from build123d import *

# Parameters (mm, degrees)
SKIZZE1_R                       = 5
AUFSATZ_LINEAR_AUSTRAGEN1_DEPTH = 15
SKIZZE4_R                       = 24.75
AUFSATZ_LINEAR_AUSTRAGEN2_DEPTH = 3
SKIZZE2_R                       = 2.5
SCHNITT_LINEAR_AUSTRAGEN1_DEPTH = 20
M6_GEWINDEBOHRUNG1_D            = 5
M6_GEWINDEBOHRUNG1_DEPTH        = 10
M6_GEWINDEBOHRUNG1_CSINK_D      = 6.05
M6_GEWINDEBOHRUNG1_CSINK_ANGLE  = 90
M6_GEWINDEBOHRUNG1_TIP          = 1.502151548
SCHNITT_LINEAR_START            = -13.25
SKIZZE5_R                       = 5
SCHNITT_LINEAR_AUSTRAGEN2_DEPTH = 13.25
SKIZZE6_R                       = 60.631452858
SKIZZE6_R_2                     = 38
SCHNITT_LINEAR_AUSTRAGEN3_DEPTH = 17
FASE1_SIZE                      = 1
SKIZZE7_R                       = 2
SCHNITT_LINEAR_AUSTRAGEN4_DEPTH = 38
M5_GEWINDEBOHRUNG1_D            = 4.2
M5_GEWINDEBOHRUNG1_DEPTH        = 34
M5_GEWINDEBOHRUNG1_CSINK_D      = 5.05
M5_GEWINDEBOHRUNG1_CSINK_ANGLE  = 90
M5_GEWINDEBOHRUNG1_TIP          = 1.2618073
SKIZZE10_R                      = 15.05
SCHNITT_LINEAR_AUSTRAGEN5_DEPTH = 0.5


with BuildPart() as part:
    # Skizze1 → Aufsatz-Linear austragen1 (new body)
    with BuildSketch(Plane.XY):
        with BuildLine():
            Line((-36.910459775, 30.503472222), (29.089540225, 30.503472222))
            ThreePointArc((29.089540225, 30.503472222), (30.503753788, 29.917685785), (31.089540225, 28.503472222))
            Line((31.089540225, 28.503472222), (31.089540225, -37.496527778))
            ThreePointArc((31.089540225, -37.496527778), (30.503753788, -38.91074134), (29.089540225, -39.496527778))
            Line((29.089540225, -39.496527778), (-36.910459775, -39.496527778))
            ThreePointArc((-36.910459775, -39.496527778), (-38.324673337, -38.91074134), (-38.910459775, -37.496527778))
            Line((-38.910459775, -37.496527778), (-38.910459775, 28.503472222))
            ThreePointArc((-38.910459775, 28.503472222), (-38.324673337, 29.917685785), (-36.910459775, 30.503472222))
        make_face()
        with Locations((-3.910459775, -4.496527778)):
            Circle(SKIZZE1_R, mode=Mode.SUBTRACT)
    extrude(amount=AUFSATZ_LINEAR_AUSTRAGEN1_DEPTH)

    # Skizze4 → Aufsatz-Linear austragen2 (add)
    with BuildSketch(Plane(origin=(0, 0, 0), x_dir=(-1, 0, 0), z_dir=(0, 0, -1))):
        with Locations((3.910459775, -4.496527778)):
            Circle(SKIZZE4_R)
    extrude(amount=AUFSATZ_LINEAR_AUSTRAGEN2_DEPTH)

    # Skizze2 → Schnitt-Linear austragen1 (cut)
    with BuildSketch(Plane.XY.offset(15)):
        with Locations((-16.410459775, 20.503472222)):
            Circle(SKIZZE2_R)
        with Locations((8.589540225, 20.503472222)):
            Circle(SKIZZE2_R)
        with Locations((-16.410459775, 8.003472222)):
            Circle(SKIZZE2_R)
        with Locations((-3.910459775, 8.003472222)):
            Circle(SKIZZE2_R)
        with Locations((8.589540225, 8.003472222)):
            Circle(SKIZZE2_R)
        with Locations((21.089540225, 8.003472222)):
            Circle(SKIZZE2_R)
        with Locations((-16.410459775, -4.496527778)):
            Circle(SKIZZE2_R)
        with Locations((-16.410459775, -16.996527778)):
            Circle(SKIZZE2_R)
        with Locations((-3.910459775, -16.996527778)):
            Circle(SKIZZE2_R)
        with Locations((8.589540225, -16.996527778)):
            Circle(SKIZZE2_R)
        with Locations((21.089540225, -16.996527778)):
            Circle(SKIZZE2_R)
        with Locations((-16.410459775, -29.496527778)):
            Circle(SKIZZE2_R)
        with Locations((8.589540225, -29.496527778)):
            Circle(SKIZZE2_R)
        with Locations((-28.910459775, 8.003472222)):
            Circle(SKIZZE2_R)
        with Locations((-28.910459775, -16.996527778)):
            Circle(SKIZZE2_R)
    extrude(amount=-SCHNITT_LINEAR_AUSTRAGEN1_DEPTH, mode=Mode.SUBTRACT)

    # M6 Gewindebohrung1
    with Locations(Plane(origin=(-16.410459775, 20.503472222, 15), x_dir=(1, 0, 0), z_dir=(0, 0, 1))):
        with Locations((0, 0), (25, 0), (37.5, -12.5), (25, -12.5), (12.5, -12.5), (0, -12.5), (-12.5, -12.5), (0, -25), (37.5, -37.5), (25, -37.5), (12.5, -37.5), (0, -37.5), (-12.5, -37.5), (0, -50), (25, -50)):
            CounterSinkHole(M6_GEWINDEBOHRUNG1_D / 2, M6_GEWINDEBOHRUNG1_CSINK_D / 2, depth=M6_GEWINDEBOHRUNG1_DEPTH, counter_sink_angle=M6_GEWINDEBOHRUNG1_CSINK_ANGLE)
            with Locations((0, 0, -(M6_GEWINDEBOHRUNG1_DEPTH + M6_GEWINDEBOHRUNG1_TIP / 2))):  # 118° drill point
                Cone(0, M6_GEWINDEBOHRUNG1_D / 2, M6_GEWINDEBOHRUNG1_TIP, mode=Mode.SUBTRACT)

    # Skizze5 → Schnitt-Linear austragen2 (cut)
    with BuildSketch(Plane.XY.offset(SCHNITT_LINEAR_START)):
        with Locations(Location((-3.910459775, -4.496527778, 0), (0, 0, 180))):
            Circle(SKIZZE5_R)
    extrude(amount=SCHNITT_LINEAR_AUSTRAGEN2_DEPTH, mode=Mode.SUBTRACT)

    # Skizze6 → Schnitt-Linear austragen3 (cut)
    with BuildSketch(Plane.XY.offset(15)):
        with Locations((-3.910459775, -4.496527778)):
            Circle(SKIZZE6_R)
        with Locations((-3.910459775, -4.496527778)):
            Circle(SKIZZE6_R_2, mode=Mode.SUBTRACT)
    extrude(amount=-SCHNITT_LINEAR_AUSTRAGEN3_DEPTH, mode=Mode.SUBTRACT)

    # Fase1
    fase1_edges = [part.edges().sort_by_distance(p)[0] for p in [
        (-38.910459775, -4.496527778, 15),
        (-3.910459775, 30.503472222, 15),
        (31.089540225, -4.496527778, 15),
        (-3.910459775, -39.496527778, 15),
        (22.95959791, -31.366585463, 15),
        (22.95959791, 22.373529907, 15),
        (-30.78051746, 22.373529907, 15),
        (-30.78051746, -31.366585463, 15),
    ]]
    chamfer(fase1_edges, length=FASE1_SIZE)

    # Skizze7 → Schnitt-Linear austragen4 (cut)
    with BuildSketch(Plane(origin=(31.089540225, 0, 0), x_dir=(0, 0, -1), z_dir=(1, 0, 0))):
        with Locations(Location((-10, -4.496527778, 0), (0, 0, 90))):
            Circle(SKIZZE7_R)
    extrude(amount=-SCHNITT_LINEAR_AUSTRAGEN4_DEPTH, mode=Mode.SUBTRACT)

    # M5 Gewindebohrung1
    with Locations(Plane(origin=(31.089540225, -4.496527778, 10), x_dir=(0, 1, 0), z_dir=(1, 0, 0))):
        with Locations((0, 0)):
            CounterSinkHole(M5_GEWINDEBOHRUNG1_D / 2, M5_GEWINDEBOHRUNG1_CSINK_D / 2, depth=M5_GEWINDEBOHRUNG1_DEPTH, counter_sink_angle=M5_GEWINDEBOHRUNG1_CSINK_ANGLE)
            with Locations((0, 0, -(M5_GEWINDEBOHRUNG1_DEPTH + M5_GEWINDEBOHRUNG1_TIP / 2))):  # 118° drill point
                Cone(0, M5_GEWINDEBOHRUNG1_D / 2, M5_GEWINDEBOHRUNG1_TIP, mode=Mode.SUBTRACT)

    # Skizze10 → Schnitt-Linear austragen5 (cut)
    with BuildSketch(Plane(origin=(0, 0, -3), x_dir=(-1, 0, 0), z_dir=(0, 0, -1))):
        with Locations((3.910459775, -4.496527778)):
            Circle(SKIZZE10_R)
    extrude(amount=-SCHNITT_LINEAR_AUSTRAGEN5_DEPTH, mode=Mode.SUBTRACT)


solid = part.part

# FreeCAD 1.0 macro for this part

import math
import FreeCAD as App
import Part
import Sketcher
from FreeCAD import Vector
Q = App.Units.Quantity


def edges_at(feature, points):
    """Names of the edges that pass closest to the given points."""
    edges = feature.Shape.Edges
    near = lambda p: min(range(len(edges)), key=lambda i: edges[i].distToShape(Part.Vertex(*p))[0])
    return sorted({f"Edge{near(p) + 1}" for p in points})

doc = App.newDocument("Part")
params = doc.addObject("Spreadsheet::Sheet", "Params")
for row, (alias, value) in enumerate([
    ("sketch1_diameter", "10 mm"),
    ("sketch1_radius", "2 mm"),
    ("sketch1_width", "66 mm"),
    ("pad1_length", "15 mm"),
    ("sketch2_diameter", "49.5 mm"),
    ("pad2_length", "3 mm"),
    ("sketch3_diameter", "5 mm"),
    ("pocket1_length", "20 mm"),
    ("sketch4_diameter", "5 mm"),
    ("hole_diameter", "5 mm"),
    ("hole_depth", "10 mm"),
    ("hole_csink_diameter", "6.05 mm"),
    ("sketch5_diameter", "10 mm"),
    ("pocket2_length", "13.25 mm"),
    ("sketch6_diameter", "76 mm"),
    ("pocket3_length", "17 mm"),
    ("chamfer_size", "1 mm"),
    ("sketch7_diameter", "4 mm"),
    ("pocket4_length", "38 mm"),
    ("sketch8_diameter", "4.2 mm"),
    ("hole2_diameter", "4.2 mm"),
    ("hole2_depth", "34 mm"),
    ("hole2_csink_diameter", "5.05 mm"),
    ("sketch9_diameter", "30.1 mm"),
    ("pocket5_length", "0.5 mm"),
], start=1):
    params.set(f"A{row}", alias)
    params.set(f"B{row}", "=" + value)
    params.setAlias(f"B{row}", alias)

body = doc.addObject("PartDesign::Body", "Body")

# Sketch on XY plane
sketch1 = body.newObject("Sketcher::SketchObject", "Sketch")
sketch1.AttachmentSupport = (doc.getObject("XY_Plane"), [""])
sketch1.MapMode = "FlatFace"
sketch1.addGeometry([
    Part.LineSegment(Vector(29.08954, 30.503472, 0), Vector(-36.91046, 30.503472, 0)),  # 0
    Part.ArcOfCircle(Part.Circle(Vector(-36.91046, 28.503472, 0), Vector(0, 0, 1), 2), math.radians(90), math.radians(180)),  # 1
    Part.LineSegment(Vector(-38.91046, 28.503472, 0), Vector(-38.91046, -37.496528, 0)),  # 2
    Part.ArcOfCircle(Part.Circle(Vector(-36.91046, -37.496528, 0), Vector(0, 0, 1), 2), math.radians(-180), math.radians(-90)),  # 3
    Part.LineSegment(Vector(-36.91046, -39.496528, 0), Vector(29.08954, -39.496528, 0)),  # 4
    Part.ArcOfCircle(Part.Circle(Vector(29.08954, -37.496528, 0), Vector(0, 0, 1), 2), math.radians(-90), math.radians(0)),  # 5
    Part.LineSegment(Vector(31.08954, -37.496528, 0), Vector(31.08954, 28.503472, 0)),  # 6
    Part.ArcOfCircle(Part.Circle(Vector(29.08954, 28.503472, 0), Vector(0, 0, 1), 2), math.radians(0), math.radians(90)),  # 7
    Part.Circle(Vector(-3.91046, -4.496528, 0), Vector(0, 0, 1), 5),  # 8
], False)
sketch1.addConstraint([
    Sketcher.Constraint("Tangent", 0, 2, 1, 1),
    Sketcher.Constraint("Tangent", 1, 2, 2, 1),
    Sketcher.Constraint("Tangent", 2, 2, 3, 1),
    Sketcher.Constraint("Tangent", 3, 2, 4, 1),
    Sketcher.Constraint("Tangent", 4, 2, 5, 1),
    Sketcher.Constraint("Tangent", 5, 2, 6, 1),
    Sketcher.Constraint("Tangent", 6, 2, 7, 1),
    Sketcher.Constraint("Tangent", 7, 2, 0, 1),
    Sketcher.Constraint("Horizontal", 0),
    Sketcher.Constraint("Vertical", 2),
    Sketcher.Constraint("Horizontal", 4),
    Sketcher.Constraint("Vertical", 6),
    Sketcher.Constraint("Equal", 1, 3),
    Sketcher.Constraint("Equal", 3, 5),
    Sketcher.Constraint("Equal", 5, 7),
    Sketcher.Constraint("Equal", 4, 2),
    Sketcher.Constraint("Diameter", 8, Q("10 mm")),
    Sketcher.Constraint("Radius", 1, Q("2 mm")),
    Sketcher.Constraint("DistanceX", 0, 2, 0, 1, Q("66 mm")),
    Sketcher.Constraint("DistanceX", 3, 3, 8, 3, Q("33 mm")),
    Sketcher.Constraint("DistanceY", 3, 3, 8, 3, Q("33 mm")),
    Sketcher.Constraint("DistanceX", 1, 3, -1, 1, Q("36.91046 mm")),
    Sketcher.Constraint("DistanceY", -1, 1, 1, 3, Q("28.503472 mm")),
])
sketch1.setExpression("Constraints[16]", "Params.sketch1_diameter")
sketch1.setExpression("Constraints[17]", "Params.sketch1_radius")
sketch1.setExpression("Constraints[18]", "Params.sketch1_width")
pad1 = body.newObject("PartDesign::Pad", "Pad")
pad1.Profile = sketch1
pad1.setExpression("Length", "Params.pad1_length")

# Sketch on XY plane
sketch2 = body.newObject("Sketcher::SketchObject", "Sketch001")
sketch2.AttachmentSupport = (doc.getObject("XY_Plane"), [""])
sketch2.MapMode = "FlatFace"
sketch2.addGeometry(Part.Circle(Vector(-3.91046, -4.496528, 0), Vector(0, 0, 1), 24.75), False)
sketch2.addConstraint([
    Sketcher.Constraint("Diameter", 0, Q("49.5 mm")),
    Sketcher.Constraint("DistanceX", 0, 3, -1, 1, Q("3.91046 mm")),
    Sketcher.Constraint("DistanceY", 0, 3, -1, 1, Q("4.496528 mm")),
])
sketch2.setExpression("Constraints[0]", "Params.sketch2_diameter")
pad2 = body.newObject("PartDesign::Pad", "Pad001")
pad2.Profile = sketch2
pad2.setExpression("Length", "Params.pad2_length")
pad2.Reversed = True

# Sketch on XY plane
sketch3 = body.newObject("Sketcher::SketchObject", "Sketch002")
sketch3.AttachmentSupport = (doc.getObject("XY_Plane"), [""])
sketch3.MapMode = "FlatFace"
sketch3.AttachmentOffset = App.Placement(Vector(0, 0, 15), App.Rotation())
sketch3.addGeometry([
    Part.Circle(Vector(-16.41046, 20.503472, 0), Vector(0, 0, 1), 2.5),  # 0
    Part.Circle(Vector(8.58954, 20.503472, 0), Vector(0, 0, 1), 2.5),  # 1
    Part.Circle(Vector(-16.41046, 8.003472, 0), Vector(0, 0, 1), 2.5),  # 2
    Part.Circle(Vector(-3.91046, 8.003472, 0), Vector(0, 0, 1), 2.5),  # 3
    Part.Circle(Vector(8.58954, 8.003472, 0), Vector(0, 0, 1), 2.5),  # 4
    Part.Circle(Vector(21.08954, 8.003472, 0), Vector(0, 0, 1), 2.5),  # 5
    Part.Circle(Vector(-16.41046, -4.496528, 0), Vector(0, 0, 1), 2.5),  # 6
    Part.Circle(Vector(-16.41046, -16.996528, 0), Vector(0, 0, 1), 2.5),  # 7
    Part.Circle(Vector(-3.91046, -16.996528, 0), Vector(0, 0, 1), 2.5),  # 8
    Part.Circle(Vector(8.58954, -16.996528, 0), Vector(0, 0, 1), 2.5),  # 9
    Part.Circle(Vector(21.08954, -16.996528, 0), Vector(0, 0, 1), 2.5),  # 10
    Part.Circle(Vector(-16.41046, -29.496528, 0), Vector(0, 0, 1), 2.5),  # 11
    Part.Circle(Vector(8.58954, -29.496528, 0), Vector(0, 0, 1), 2.5),  # 12
    Part.Circle(Vector(-28.91046, 8.003472, 0), Vector(0, 0, 1), 2.5),  # 13
    Part.Circle(Vector(-28.91046, -16.996528, 0), Vector(0, 0, 1), 2.5),  # 14
], False)
sketch3.addConstraint([
    Sketcher.Constraint("Equal", 0, 1),
    Sketcher.Constraint("Equal", 1, 2),
    Sketcher.Constraint("Equal", 2, 3),
    Sketcher.Constraint("Equal", 3, 4),
    Sketcher.Constraint("Equal", 4, 5),
    Sketcher.Constraint("Equal", 5, 6),
    Sketcher.Constraint("Equal", 6, 7),
    Sketcher.Constraint("Equal", 7, 8),
    Sketcher.Constraint("Equal", 8, 9),
    Sketcher.Constraint("Equal", 9, 10),
    Sketcher.Constraint("Equal", 10, 11),
    Sketcher.Constraint("Equal", 11, 12),
    Sketcher.Constraint("Equal", 12, 13),
    Sketcher.Constraint("Equal", 13, 14),
    Sketcher.Constraint("Horizontal", 0, 3, 1, 3),
    Sketcher.Constraint("Horizontal", 2, 3, 3, 3),
    Sketcher.Constraint("Horizontal", 3, 3, 4, 3),
    Sketcher.Constraint("Horizontal", 4, 3, 5, 3),
    Sketcher.Constraint("Horizontal", 7, 3, 8, 3),
    Sketcher.Constraint("Horizontal", 8, 3, 9, 3),
    Sketcher.Constraint("Horizontal", 9, 3, 10, 3),
    Sketcher.Constraint("Horizontal", 11, 3, 12, 3),
    Sketcher.Constraint("Horizontal", 5, 3, 13, 3),
    Sketcher.Constraint("Horizontal", 10, 3, 14, 3),
    Sketcher.Constraint("Vertical", 0, 3, 2, 3),
    Sketcher.Constraint("Vertical", 1, 3, 4, 3),
    Sketcher.Constraint("Vertical", 2, 3, 6, 3),
    Sketcher.Constraint("Vertical", 6, 3, 7, 3),
    Sketcher.Constraint("Vertical", 3, 3, 8, 3),
    Sketcher.Constraint("Vertical", 4, 3, 9, 3),
    Sketcher.Constraint("Vertical", 5, 3, 10, 3),
    Sketcher.Constraint("Vertical", 7, 3, 11, 3),
    Sketcher.Constraint("Vertical", 9, 3, 12, 3),
    Sketcher.Constraint("Vertical", 13, 3, 14, 3),
    Sketcher.Constraint("Diameter", 0, Q("5 mm")),
    Sketcher.Constraint("DistanceX", 0, 3, 1, 3, Q("25 mm")),
    Sketcher.Constraint("DistanceX", 3, 3, 5, 3, Q("25 mm")),
    Sketcher.Constraint("DistanceY", 6, 3, 0, 3, Q("25 mm")),
    Sketcher.Constraint("DistanceY", 7, 3, 2, 3, Q("25 mm")),
    Sketcher.Constraint("DistanceY", 11, 3, 6, 3, Q("25 mm")),
    Sketcher.Constraint("DistanceX", 13, 3, 3, 3, Q("25 mm")),
    Sketcher.Constraint("DistanceY", 2, 3, 0, 3, Q("12.5 mm")),
    Sketcher.Constraint("DistanceX", 2, 3, 3, 3, Q("12.5 mm")),
    Sketcher.Constraint("DistanceX", 0, 3, -1, 1, Q("16.41046 mm")),
    Sketcher.Constraint("DistanceY", -1, 1, 0, 3, Q("20.503472 mm")),
])
sketch3.setExpression("Constraints[34]", "Params.sketch3_diameter")
pocket1 = body.newObject("PartDesign::Pocket", "Pocket")
pocket1.Profile = sketch3
pocket1.setExpression("Length", "Params.pocket1_length")

# Sketch on XY plane
sketch4 = body.newObject("Sketcher::SketchObject", "Sketch003")
sketch4.AttachmentSupport = (doc.getObject("XY_Plane"), [""])
sketch4.MapMode = "FlatFace"
sketch4.AttachmentOffset = App.Placement(Vector(0, 0, 15), App.Rotation())
sketch4.addGeometry([
    Part.Circle(Vector(-16.41046, 20.503472, 0), Vector(0, 0, 1), 2.5),  # 0
    Part.Circle(Vector(8.58954, 20.503472, 0), Vector(0, 0, 1), 2.5),  # 1
    Part.Circle(Vector(21.08954, 8.003472, 0), Vector(0, 0, 1), 2.5),  # 2
    Part.Circle(Vector(8.58954, 8.003472, 0), Vector(0, 0, 1), 2.5),  # 3
    Part.Circle(Vector(-3.91046, 8.003472, 0), Vector(0, 0, 1), 2.5),  # 4
    Part.Circle(Vector(-16.41046, 8.003472, 0), Vector(0, 0, 1), 2.5),  # 5
    Part.Circle(Vector(-28.91046, 8.003472, 0), Vector(0, 0, 1), 2.5),  # 6
    Part.Circle(Vector(-16.41046, -4.496528, 0), Vector(0, 0, 1), 2.5),  # 7
    Part.Circle(Vector(21.08954, -16.996528, 0), Vector(0, 0, 1), 2.5),  # 8
    Part.Circle(Vector(8.58954, -16.996528, 0), Vector(0, 0, 1), 2.5),  # 9
    Part.Circle(Vector(-3.91046, -16.996528, 0), Vector(0, 0, 1), 2.5),  # 10
    Part.Circle(Vector(-16.41046, -16.996528, 0), Vector(0, 0, 1), 2.5),  # 11
    Part.Circle(Vector(-28.91046, -16.996528, 0), Vector(0, 0, 1), 2.5),  # 12
    Part.Circle(Vector(-16.41046, -29.496528, 0), Vector(0, 0, 1), 2.5),  # 13
    Part.Circle(Vector(8.58954, -29.496528, 0), Vector(0, 0, 1), 2.5),  # 14
], False)
sketch4.addConstraint([
    Sketcher.Constraint("Equal", 0, 1),
    Sketcher.Constraint("Equal", 1, 2),
    Sketcher.Constraint("Equal", 2, 3),
    Sketcher.Constraint("Equal", 3, 4),
    Sketcher.Constraint("Equal", 4, 5),
    Sketcher.Constraint("Equal", 5, 6),
    Sketcher.Constraint("Equal", 6, 7),
    Sketcher.Constraint("Equal", 7, 8),
    Sketcher.Constraint("Equal", 8, 9),
    Sketcher.Constraint("Equal", 9, 10),
    Sketcher.Constraint("Equal", 10, 11),
    Sketcher.Constraint("Equal", 11, 12),
    Sketcher.Constraint("Equal", 12, 13),
    Sketcher.Constraint("Equal", 13, 14),
    Sketcher.Constraint("Horizontal", 0, 3, 1, 3),
    Sketcher.Constraint("Horizontal", 2, 3, 3, 3),
    Sketcher.Constraint("Horizontal", 3, 3, 4, 3),
    Sketcher.Constraint("Horizontal", 4, 3, 5, 3),
    Sketcher.Constraint("Horizontal", 5, 3, 6, 3),
    Sketcher.Constraint("Horizontal", 8, 3, 9, 3),
    Sketcher.Constraint("Horizontal", 9, 3, 10, 3),
    Sketcher.Constraint("Horizontal", 10, 3, 11, 3),
    Sketcher.Constraint("Horizontal", 11, 3, 12, 3),
    Sketcher.Constraint("Horizontal", 13, 3, 14, 3),
    Sketcher.Constraint("Vertical", 1, 3, 3, 3),
    Sketcher.Constraint("Vertical", 0, 3, 5, 3),
    Sketcher.Constraint("Vertical", 5, 3, 7, 3),
    Sketcher.Constraint("Vertical", 2, 3, 8, 3),
    Sketcher.Constraint("Vertical", 3, 3, 9, 3),
    Sketcher.Constraint("Vertical", 4, 3, 10, 3),
    Sketcher.Constraint("Vertical", 7, 3, 11, 3),
    Sketcher.Constraint("Vertical", 6, 3, 12, 3),
    Sketcher.Constraint("Vertical", 11, 3, 13, 3),
    Sketcher.Constraint("Vertical", 9, 3, 14, 3),
    Sketcher.Constraint("Diameter", 0, Q("5 mm")),
    Sketcher.Constraint("DistanceX", 0, 3, 1, 3, Q("25 mm")),
    Sketcher.Constraint("DistanceX", 4, 3, 2, 3, Q("25 mm")),
    Sketcher.Constraint("DistanceX", 6, 3, 4, 3, Q("25 mm")),
    Sketcher.Constraint("DistanceY", 7, 3, 0, 3, Q("25 mm")),
    Sketcher.Constraint("DistanceY", 8, 3, 2, 3, Q("25 mm")),
    Sketcher.Constraint("DistanceY", 13, 3, 7, 3, Q("25 mm")),
    Sketcher.Constraint("DistanceX", 1, 3, 2, 3, Q("12.5 mm")),
    Sketcher.Constraint("DistanceY", 2, 3, 1, 3, Q("12.5 mm")),
    Sketcher.Constraint("DistanceX", 0, 3, -1, 1, Q("16.41046 mm")),
    Sketcher.Constraint("DistanceY", -1, 1, 0, 3, Q("20.503472 mm")),
])
sketch4.setExpression("Constraints[34]", "Params.sketch4_diameter")
doc.recompute()
hole = body.newObject("PartDesign::Hole", "Hole")
hole.Profile = sketch4
hole.ThreadType = "None"
hole.setExpression("Diameter", "Params.hole_diameter")
hole.DepthType = "Dimension"
hole.setExpression("Depth", "Params.hole_depth")
hole.DrillPoint = "Angled"
hole.DrillPointAngle = 118
hole.HoleCutType = "Countersink"
hole.setExpression("HoleCutDiameter", "Params.hole_csink_diameter")
hole.HoleCutCountersinkAngle = 90

# Sketch on XY plane
sketch5 = body.newObject("Sketcher::SketchObject", "Sketch004")
sketch5.AttachmentSupport = (doc.getObject("XY_Plane"), [""])
sketch5.MapMode = "FlatFace"
sketch5.AttachmentOffset = App.Placement(Vector(0, 0, -13.25), App.Rotation())
sketch5.addGeometry(Part.Circle(Vector(-3.91046, -4.496528, 0), Vector(0, 0, 1), 5), False)
sketch5.addConstraint([
    Sketcher.Constraint("Diameter", 0, Q("10 mm")),
    Sketcher.Constraint("DistanceX", 0, 3, -1, 1, Q("3.91046 mm")),
    Sketcher.Constraint("DistanceY", 0, 3, -1, 1, Q("4.496528 mm")),
])
sketch5.setExpression("Constraints[0]", "Params.sketch5_diameter")
pocket2 = body.newObject("PartDesign::Pocket", "Pocket001")
pocket2.Profile = sketch5
pocket2.setExpression("Length", "Params.pocket2_length")
pocket2.Reversed = True

# Sketch on XY plane
sketch6 = body.newObject("Sketcher::SketchObject", "Sketch005")
sketch6.AttachmentSupport = (doc.getObject("XY_Plane"), [""])
sketch6.MapMode = "FlatFace"
sketch6.AttachmentOffset = App.Placement(Vector(0, 0, 15), App.Rotation())
sketch6.addGeometry([
    Part.Circle(Vector(-3.91046, -4.496528, 0), Vector(0, 0, 1), 60.631453),
    Part.Circle(Vector(-3.91046, -4.496528, 0), Vector(0, 0, 1), 38),
], False)
sketch6.addConstraint([
    Sketcher.Constraint("Coincident", 1, 3, 0, 3),
    Sketcher.Constraint("Diameter", 1, Q("76 mm")),
    Sketcher.Constraint("Diameter", 0, Q("121.262906 mm")),
    Sketcher.Constraint("DistanceX", 0, 3, -1, 1, Q("3.91046 mm")),
    Sketcher.Constraint("DistanceY", 0, 3, -1, 1, Q("4.496528 mm")),
])
sketch6.setExpression("Constraints[1]", "Params.sketch6_diameter")
pocket3 = body.newObject("PartDesign::Pocket", "Pocket002")
pocket3.Profile = sketch6
pocket3.setExpression("Length", "Params.pocket3_length")
doc.recompute()

chamfer = body.newObject("PartDesign::Chamfer", "Chamfer")
chamfer.Base = (pocket3, edges_at(pocket3, [
    (-38.91, -4.497, 15),
    (-3.91, 30.503, 15),
    (31.09, -4.497, 15),
    (-3.91, -39.497, 15),
    (22.96, -31.367, 15),
    (22.96, 22.374, 15),
    (-30.781, 22.374, 15),
    (-30.781, -31.367, 15),
]))
chamfer.setExpression("Size", "Params.chamfer_size")

# Sketch on YZ plane
sketch7 = body.newObject("Sketcher::SketchObject", "Sketch006")
sketch7.AttachmentSupport = (doc.getObject("YZ_Plane"), [""])
sketch7.MapMode = "FlatFace"
sketch7.AttachmentOffset = App.Placement(Vector(0, 0, 31.08954), App.Rotation())
sketch7.addGeometry(Part.Circle(Vector(-4.496528, 10, 0), Vector(0, 0, 1), 2), False)
sketch7.addConstraint([
    Sketcher.Constraint("Diameter", 0, Q("4 mm")),
    Sketcher.Constraint("DistanceY", -1, 1, 0, 3, Q("10 mm")),
    Sketcher.Constraint("DistanceX", 0, 3, -1, 1, Q("4.496528 mm")),
])
sketch7.setExpression("Constraints[0]", "Params.sketch7_diameter")
pocket4 = body.newObject("PartDesign::Pocket", "Pocket003")
pocket4.Profile = sketch7
pocket4.setExpression("Length", "Params.pocket4_length")

# Sketch on YZ plane
sketch8 = body.newObject("Sketcher::SketchObject", "Sketch007")
sketch8.AttachmentSupport = (doc.getObject("YZ_Plane"), [""])
sketch8.MapMode = "FlatFace"
sketch8.AttachmentOffset = App.Placement(Vector(0, 0, 31.08954), App.Rotation())
sketch8.addGeometry(Part.Circle(Vector(-4.496528, 10, 0), Vector(0, 0, 1), 2.1), False)
sketch8.addConstraint([
    Sketcher.Constraint("Diameter", 0, Q("4.2 mm")),
    Sketcher.Constraint("DistanceY", -1, 1, 0, 3, Q("10 mm")),
    Sketcher.Constraint("DistanceX", 0, 3, -1, 1, Q("4.496528 mm")),
])
sketch8.setExpression("Constraints[0]", "Params.sketch8_diameter")
doc.recompute()
hole2 = body.newObject("PartDesign::Hole", "Hole001")
hole2.Profile = sketch8
hole2.ThreadType = "None"
hole2.setExpression("Diameter", "Params.hole2_diameter")
hole2.DepthType = "Dimension"
hole2.setExpression("Depth", "Params.hole2_depth")
hole2.DrillPoint = "Angled"
hole2.DrillPointAngle = 118
hole2.HoleCutType = "Countersink"
hole2.setExpression("HoleCutDiameter", "Params.hole2_csink_diameter")
hole2.HoleCutCountersinkAngle = 90

# Sketch on XY plane
sketch9 = body.newObject("Sketcher::SketchObject", "Sketch008")
sketch9.AttachmentSupport = (doc.getObject("XY_Plane"), [""])
sketch9.MapMode = "FlatFace"
sketch9.AttachmentOffset = App.Placement(Vector(0, 0, -3), App.Rotation())
sketch9.addGeometry(Part.Circle(Vector(-3.91046, -4.496528, 0), Vector(0, 0, 1), 15.05), False)
sketch9.addConstraint([
    Sketcher.Constraint("Diameter", 0, Q("30.1 mm")),
    Sketcher.Constraint("DistanceX", 0, 3, -1, 1, Q("3.91046 mm")),
    Sketcher.Constraint("DistanceY", 0, 3, -1, 1, Q("4.496528 mm")),
])
sketch9.setExpression("Constraints[0]", "Params.sketch9_diameter")
pocket5 = body.newObject("PartDesign::Pocket", "Pocket004")
pocket5.Profile = sketch9
pocket5.setExpression("Length", "Params.pocket5_length")
pocket5.Reversed = True

doc.recompute()
